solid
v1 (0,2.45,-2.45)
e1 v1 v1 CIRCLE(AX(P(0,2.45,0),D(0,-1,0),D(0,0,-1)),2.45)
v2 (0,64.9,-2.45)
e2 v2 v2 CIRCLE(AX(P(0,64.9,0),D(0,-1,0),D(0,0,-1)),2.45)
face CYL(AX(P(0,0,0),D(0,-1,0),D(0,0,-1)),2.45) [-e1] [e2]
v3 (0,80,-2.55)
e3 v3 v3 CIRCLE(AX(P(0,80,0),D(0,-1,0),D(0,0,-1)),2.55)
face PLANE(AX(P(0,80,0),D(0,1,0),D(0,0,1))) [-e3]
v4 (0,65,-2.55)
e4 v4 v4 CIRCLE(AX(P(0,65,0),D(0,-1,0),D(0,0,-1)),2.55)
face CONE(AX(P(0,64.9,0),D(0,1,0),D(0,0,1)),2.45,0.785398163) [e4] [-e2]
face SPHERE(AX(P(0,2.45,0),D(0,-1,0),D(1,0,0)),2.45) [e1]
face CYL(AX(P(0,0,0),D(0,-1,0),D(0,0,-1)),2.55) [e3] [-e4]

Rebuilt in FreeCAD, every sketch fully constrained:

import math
import FreeCAD as App
import Part
import Sketcher
from FreeCAD import Vector
Q = App.Units.Quantity

doc = App.newDocument("Part")
params = doc.addObject("Spreadsheet::Sheet", "Params")
for row, (alias, value) in enumerate([
    ("sketch1_height", "80 mm"),
    ("sketch1_height2", "15 mm"),
    ("sketch1_radius", "2.45 mm"),
    ("sketch1_width", "2.55 mm"),
    ("revolution_angle", "360 deg"),
], start=1):
    params.set(f"A{row}", alias)
    params.set(f"B{row}", "=" + value)
    params.setAlias(f"B{row}", alias)

body = doc.addObject("PartDesign::Body", "Body")

# Sketch on XY plane
sketch1 = body.newObject("Sketcher::SketchObject", "Sketch")
sketch1.AttachmentSupport = (doc.getObject("XY_Plane"), [""])
sketch1.MapMode = "FlatFace"
sketch1.addGeometry([
    Part.LineSegment(Vector(0, 80, 0), Vector(0, 0, 0)),  # 0
    Part.ArcOfCircle(Part.Circle(Vector(0, 2.45, 0), Vector(0, 0, 1), 2.45), math.radians(-90), math.radians(0)),  # 1
    Part.LineSegment(Vector(2.45, 2.45, 0), Vector(2.45, 64.9, 0)),  # 2
    Part.LineSegment(Vector(2.45, 64.9, 0), Vector(2.55, 65, 0)),  # 3
    Part.LineSegment(Vector(2.55, 65, 0), Vector(2.55, 80, 0)),  # 4
    Part.LineSegment(Vector(2.55, 80, 0), Vector(0, 80, 0)),  # 5
], False)
sketch1.addConstraint([
    Sketcher.Constraint("Coincident", 0, 2, 1, 1),
    Sketcher.Constraint("Tangent", 1, 2, 2, 1),
    Sketcher.Constraint("Coincident", 2, 2, 3, 1),
    Sketcher.Constraint("Coincident", 3, 2, 4, 1),
    Sketcher.Constraint("Coincident", 4, 2, 5, 1),
    Sketcher.Constraint("Coincident", 5, 2, 0, 1),
    Sketcher.Constraint("Vertical", 0),
    Sketcher.Constraint("Vertical", 2),
    Sketcher.Constraint("Vertical", 4),
    Sketcher.Constraint("Horizontal", 5),
    Sketcher.Constraint("Coincident", 0, 2, -1, 1),
    Sketcher.Constraint("PointOnObject", 1, 3, -2),
    Sketcher.Constraint("DistanceY", 0, 2, 0, 1, 80.0),
    Sketcher.Constraint("DistanceY", 4, 1, 4, 2, 15.0),
    Sketcher.Constraint("Angle", 3, Q("45 deg")),
    Sketcher.Constraint("Radius", 1, 2.45),
    Sketcher.Constraint("DistanceX", 5, 2, 5, 1, 2.55),
])
sketch1.setExpression("Constraints[12]", "Params.sketch1_height")
sketch1.setExpression("Constraints[13]", "Params.sketch1_height2")
sketch1.setExpression("Constraints[15]", "Params.sketch1_radius")
sketch1.setExpression("Constraints[16]", "Params.sketch1_width")
revolution = body.newObject("PartDesign::Revolution", "Revolution")
revolution.Profile = sketch1
revolution.ReferenceAxis = (sketch1, ["V_Axis"])
revolution.setExpression("Angle", "Params.revolution_angle")

doc.recompute()
